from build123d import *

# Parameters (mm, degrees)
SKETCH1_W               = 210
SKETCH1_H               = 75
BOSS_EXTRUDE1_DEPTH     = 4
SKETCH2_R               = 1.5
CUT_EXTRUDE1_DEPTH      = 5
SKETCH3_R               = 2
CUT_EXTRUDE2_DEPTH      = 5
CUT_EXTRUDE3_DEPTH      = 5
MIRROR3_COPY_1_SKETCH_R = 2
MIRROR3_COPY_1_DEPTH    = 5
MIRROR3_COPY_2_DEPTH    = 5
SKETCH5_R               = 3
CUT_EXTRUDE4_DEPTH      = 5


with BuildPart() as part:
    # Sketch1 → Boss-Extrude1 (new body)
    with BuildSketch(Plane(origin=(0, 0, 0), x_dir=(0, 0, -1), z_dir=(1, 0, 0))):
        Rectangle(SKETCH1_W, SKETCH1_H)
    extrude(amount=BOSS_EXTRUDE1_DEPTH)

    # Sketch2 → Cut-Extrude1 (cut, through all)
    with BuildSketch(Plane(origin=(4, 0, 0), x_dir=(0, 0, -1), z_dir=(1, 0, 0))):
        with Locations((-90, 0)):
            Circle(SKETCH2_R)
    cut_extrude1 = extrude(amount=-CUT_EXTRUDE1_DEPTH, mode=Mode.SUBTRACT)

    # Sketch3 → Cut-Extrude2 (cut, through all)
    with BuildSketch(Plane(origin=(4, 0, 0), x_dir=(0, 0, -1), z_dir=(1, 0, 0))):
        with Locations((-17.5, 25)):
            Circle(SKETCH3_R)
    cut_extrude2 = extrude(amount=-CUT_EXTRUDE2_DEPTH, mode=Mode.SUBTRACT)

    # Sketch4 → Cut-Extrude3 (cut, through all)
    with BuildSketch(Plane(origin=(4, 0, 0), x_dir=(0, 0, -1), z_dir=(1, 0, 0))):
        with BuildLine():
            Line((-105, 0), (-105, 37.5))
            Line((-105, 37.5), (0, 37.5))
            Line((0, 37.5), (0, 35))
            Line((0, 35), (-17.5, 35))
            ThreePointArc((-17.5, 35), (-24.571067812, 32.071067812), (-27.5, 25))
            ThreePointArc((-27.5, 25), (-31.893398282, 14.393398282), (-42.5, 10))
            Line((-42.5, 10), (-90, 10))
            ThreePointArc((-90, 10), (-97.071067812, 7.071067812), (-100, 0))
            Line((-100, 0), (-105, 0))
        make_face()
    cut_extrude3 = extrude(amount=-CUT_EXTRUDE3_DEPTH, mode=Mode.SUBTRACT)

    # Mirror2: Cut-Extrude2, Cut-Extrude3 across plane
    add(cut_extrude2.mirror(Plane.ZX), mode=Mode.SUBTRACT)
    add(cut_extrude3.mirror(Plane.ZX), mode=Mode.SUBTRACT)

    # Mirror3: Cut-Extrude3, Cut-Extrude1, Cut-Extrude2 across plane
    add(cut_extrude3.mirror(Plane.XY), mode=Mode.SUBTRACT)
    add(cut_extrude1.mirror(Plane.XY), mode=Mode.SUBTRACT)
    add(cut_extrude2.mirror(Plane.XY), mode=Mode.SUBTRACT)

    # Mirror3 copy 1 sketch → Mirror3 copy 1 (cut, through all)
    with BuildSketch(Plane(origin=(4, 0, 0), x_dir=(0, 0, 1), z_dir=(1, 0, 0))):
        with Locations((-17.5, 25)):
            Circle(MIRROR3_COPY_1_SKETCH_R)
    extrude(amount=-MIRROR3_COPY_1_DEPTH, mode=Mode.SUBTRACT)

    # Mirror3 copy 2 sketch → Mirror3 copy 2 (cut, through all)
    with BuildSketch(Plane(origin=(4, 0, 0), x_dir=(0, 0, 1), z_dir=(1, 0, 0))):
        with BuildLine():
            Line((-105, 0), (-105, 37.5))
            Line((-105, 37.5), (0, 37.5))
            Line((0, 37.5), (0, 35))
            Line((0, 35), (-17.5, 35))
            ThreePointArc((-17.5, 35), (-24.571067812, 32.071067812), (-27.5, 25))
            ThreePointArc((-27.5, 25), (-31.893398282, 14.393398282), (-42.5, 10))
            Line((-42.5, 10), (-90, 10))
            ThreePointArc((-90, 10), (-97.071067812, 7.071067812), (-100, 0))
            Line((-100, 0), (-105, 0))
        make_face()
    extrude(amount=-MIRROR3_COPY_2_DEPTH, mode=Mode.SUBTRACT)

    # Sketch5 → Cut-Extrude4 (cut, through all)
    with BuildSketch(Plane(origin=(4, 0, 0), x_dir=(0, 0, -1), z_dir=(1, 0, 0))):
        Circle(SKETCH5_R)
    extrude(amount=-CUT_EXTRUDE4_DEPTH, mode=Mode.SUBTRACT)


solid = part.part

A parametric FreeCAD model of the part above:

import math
import FreeCAD as App
import Part
import Sketcher

V = App.Vector

doc = App.newDocument("Part")
body = doc.addObject("PartDesign::Body", "Body")

sketch1 = body.newObject("Sketcher::SketchObject", "Sketch")
sketch1.AttachmentSupport = (doc.getObject("YZ_Plane"), [""])
sketch1.MapMode = "FlatFace"
sketch1.addGeometry(Part.LineSegment(V(38, 105, 0), V(-38, 105, 0)), False)
sketch1.addGeometry(Part.LineSegment(V(-38, 105, 0), V(-38, -105, 0)), False)
sketch1.addGeometry(Part.LineSegment(V(-38, -105, 0), V(38, -105, 0)), False)
sketch1.addGeometry(Part.LineSegment(V(38, -105, 0), V(38, 105, 0)), False)
sketch1.addConstraint(Sketcher.Constraint("Coincident", 0, 2, 1, 1))
sketch1.addConstraint(Sketcher.Constraint("Coincident", 1, 2, 2, 1))
sketch1.addConstraint(Sketcher.Constraint("Coincident", 2, 2, 3, 1))
sketch1.addConstraint(Sketcher.Constraint("Coincident", 3, 2, 0, 1))
sketch1.addConstraint(Sketcher.Constraint("Horizontal", 0))
sketch1.addConstraint(Sketcher.Constraint("Vertical", 1))
sketch1.addConstraint(Sketcher.Constraint("Horizontal", 2))
sketch1.addConstraint(Sketcher.Constraint("Vertical", 3))
sketch1.addConstraint(Sketcher.Constraint("Symmetric", 0, 2, 2, 2, -1, 1))
sketch1.addConstraint(Sketcher.Constraint("DistanceX", 0, 2, 0, 1, 75.0))
sketch1.addConstraint(Sketcher.Constraint("DistanceY", 1, 2, 1, 1, 210.0))
pad1 = body.newObject("PartDesign::Pad", "Pad")
pad1.Profile = sketch1
pad1.Length = 4

sketch2 = body.newObject("Sketcher::SketchObject", "Sketch001")
sketch2.AttachmentSupport = (doc.getObject("YZ_Plane"), [""])
sketch2.MapMode = "FlatFace"
sketch2.AttachmentOffset = App.Placement(V(0, 0, 4), App.Rotation())
sketch2.addGeometry(Part.Circle(V(0, 90, 0), V(0, 0, 1), 1.5), False)
sketch2.addConstraint(Sketcher.Constraint("PointOnObject", 0, 3, -2))
sketch2.addConstraint(Sketcher.Constraint("Diameter", 0, 3.0))
sketch2.addConstraint(Sketcher.Constraint("DistanceY", -1, 1, 0, 3, 90.0))
pocket1 = body.newObject("PartDesign::Pocket", "Pocket")
pocket1.Profile = sketch2
pocket1.Type = "ThroughAll"

sketch3 = body.newObject("Sketcher::SketchObject", "Sketch002")
sketch3.AttachmentSupport = (doc.getObject("YZ_Plane"), [""])
sketch3.MapMode = "FlatFace"
sketch3.AttachmentOffset = App.Placement(V(0, 0, 4), App.Rotation())
sketch3.addGeometry(Part.Circle(V(25, 17.5, 0), V(0, 0, 1), 2), False)
sketch3.addConstraint(Sketcher.Constraint("Diameter", 0, 4.0))
sketch3.addConstraint(Sketcher.Constraint("DistanceX", -1, 1, 0, 3, 25.0))
sketch3.addConstraint(Sketcher.Constraint("DistanceY", -1, 1, 0, 3, 17.5))
pocket2 = body.newObject("PartDesign::Pocket", "Pocket001")
pocket2.Profile = sketch3
pocket2.Type = "ThroughAll"

sketch4 = body.newObject("Sketcher::SketchObject", "Sketch003")
sketch4.AttachmentSupport = (doc.getObject("YZ_Plane"), [""])
sketch4.MapMode = "FlatFace"
sketch4.AttachmentOffset = App.Placement(V(0, 0, 4), App.Rotation())
sketch4.addGeometry(Part.LineSegment(V(37.5, 105, 0), V(0, 105, 0)), False)
sketch4.addGeometry(Part.LineSegment(V(0, 105, 0), V(0, 100, 0)), False)
sketch4.addGeometry(Part.ArcOfCircle(Part.Circle(V(0, 90, 0), V(0, 0, 1), 10), math.radians(0), math.radians(90)), False)
sketch4.addGeometry(Part.LineSegment(V(10, 90, 0), V(10, 42.5, 0)), False)
sketch4.addGeometry(Part.ArcOfCircle(Part.Circle(V(25, 42.5, 0), V(0, 0, 1), 15), math.radians(180), math.radians(270)), False)
sketch4.addGeometry(Part.ArcOfCircle(Part.Circle(V(25, 17.5, 0), V(0, 0, 1), 10), math.radians(0), math.radians(90)), False)
sketch4.addGeometry(Part.LineSegment(V(35, 17.5, 0), V(35, 0, 0)), False)
sketch4.addGeometry(Part.LineSegment(V(35, 0, 0), V(37.5, 0, 0)), False)
sketch4.addGeometry(Part.LineSegment(V(37.5, 0, 0), V(37.5, 105, 0)), False)
sketch4.addConstraint(Sketcher.Constraint("Coincident", 0, 2, 1, 1))
sketch4.addConstraint(Sketcher.Constraint("Coincident", 1, 2, 2, 2))
sketch4.addConstraint(Sketcher.Constraint("Tangent", 2, 1, 3, 1))
sketch4.addConstraint(Sketcher.Constraint("Tangent", 3, 2, 4, 1))
sketch4.addConstraint(Sketcher.Constraint("Tangent", 4, 2, 5, 2))
sketch4.addConstraint(Sketcher.Constraint("Tangent", 5, 1, 6, 1))
sketch4.addConstraint(Sketcher.Constraint("Coincident", 6, 2, 7, 1))
sketch4.addConstraint(Sketcher.Constraint("Coincident", 7, 2, 8, 1))
sketch4.addConstraint(Sketcher.Constraint("Coincident", 8, 2, 0, 1))
sketch4.addConstraint(Sketcher.Constraint("Horizontal", 0))
sketch4.addConstraint(Sketcher.Constraint("Vertical", 1))
sketch4.addConstraint(Sketcher.Constraint("Vertical", 3))
sketch4.addConstraint(Sketcher.Constraint("Vertical", 6))
sketch4.addConstraint(Sketcher.Constraint("Horizontal", 7))
sketch4.addConstraint(Sketcher.Constraint("Vertical", 8))
sketch4.addConstraint(Sketcher.Constraint("Equal", 2, 5))
sketch4.addConstraint(Sketcher.Constraint("PointOnObject", 2, 3, -2))
sketch4.addConstraint(Sketcher.Constraint("PointOnObject", 0, 2, -2))
sketch4.addConstraint(Sketcher.Constraint("PointOnObject", 6, 2, -1))
sketch4.addConstraint(Sketcher.Constraint("Vertical", 4, 3, 5, 3))
sketch4.addConstraint(Sketcher.Constraint("Radius", 2, 10.0))
sketch4.addConstraint(Sketcher.Constraint("Radius", 4, 15.0))
sketch4.addConstraint(Sketcher.Constraint("DistanceY", 1, 2, 1, 1, 5.0))
sketch4.addConstraint(Sketcher.Constraint("DistanceY", 8, 1, 8, 2, 105.0))
sketch4.addConstraint(Sketcher.Constraint("DistanceX", 0, 2, 0, 1, 37.5))
sketch4.addConstraint(Sketcher.Constraint("DistanceY", 3, 2, 3, 1, 47.5))
pocket3 = body.newObject("PartDesign::Pocket", "Pocket002")
pocket3.Profile = sketch4
pocket3.Type = "ThroughAll"
doc.recompute()

mirrored = body.newObject("PartDesign::Mirrored", "Mirrored")
mirrored.Originals = [pocket2, pocket3]
mirrored.MirrorPlane = (doc.getObject("XZ_Plane"), [""])
body.Tip = mirrored
doc.recompute()

mirrored2 = body.newObject("PartDesign::Mirrored", "Mirrored001")
mirrored2.Originals = [pocket3, pocket1, pocket2]
mirrored2.MirrorPlane = (doc.getObject("XY_Plane"), [""])
body.Tip = mirrored2

sketch5 = body.newObject("Sketcher::SketchObject", "Sketch004")
sketch5.AttachmentSupport = (doc.getObject("YZ_Plane"), [""])
sketch5.MapMode = "FlatFace"
sketch5.AttachmentOffset = App.Placement(V(0, 0, 4), App.Rotation())
sketch5.addGeometry(Part.Circle(V(-25, -17.5, 0), V(0, 0, 1), 2), False)
sketch5.addConstraint(Sketcher.Constraint("Diameter", 0, 4.0))
sketch5.addConstraint(Sketcher.Constraint("DistanceX", 0, 3, -1, 1, 25.0))
sketch5.addConstraint(Sketcher.Constraint("DistanceY", 0, 3, -1, 1, 17.5))
pocket4 = body.newObject("PartDesign::Pocket", "Pocket003")
pocket4.Profile = sketch5
pocket4.Type = "ThroughAll"

sketch6 = body.newObject("Sketcher::SketchObject", "Sketch005")
sketch6.AttachmentSupport = (doc.getObject("YZ_Plane"), [""])
sketch6.MapMode = "FlatFace"
sketch6.AttachmentOffset = App.Placement(V(0, 0, 4), App.Rotation())
sketch6.addGeometry(Part.LineSegment(V(-37.5, -105, 0), V(0, -105, 0)), False)
sketch6.addGeometry(Part.LineSegment(V(0, -105, 0), V(0, -100, 0)), False)
sketch6.addGeometry(Part.ArcOfCircle(Part.Circle(V(0, -90, 0), V(0, 0, 1), 10), math.radians(180), math.radians(270)), False)
sketch6.addGeometry(Part.LineSegment(V(-10, -90, 0), V(-10, -42.5, 0)), False)
sketch6.addGeometry(Part.ArcOfCircle(Part.Circle(V(-25, -42.5, 0), V(0, 0, 1), 15), math.radians(0), math.radians(90)), False)
sketch6.addGeometry(Part.ArcOfCircle(Part.Circle(V(-25, -17.5, 0), V(0, 0, 1), 10), math.radians(180), math.radians(270)), False)
sketch6.addGeometry(Part.LineSegment(V(-35, -17.5, 0), V(-35, 0, 0)), False)
sketch6.addGeometry(Part.LineSegment(V(-35, 0, 0), V(-37.5, 0, 0)), False)
sketch6.addGeometry(Part.LineSegment(V(-37.5, 0, 0), V(-37.5, -105, 0)), False)
sketch6.addConstraint(Sketcher.Constraint("Coincident", 0, 2, 1, 1))
sketch6.addConstraint(Sketcher.Constraint("Coincident", 1, 2, 2, 2))
sketch6.addConstraint(Sketcher.Constraint("Tangent", 2, 1, 3, 1))
sketch6.addConstraint(Sketcher.Constraint("Tangent", 3, 2, 4, 1))
sketch6.addConstraint(Sketcher.Constraint("Tangent", 4, 2, 5, 2))
sketch6.addConstraint(Sketcher.Constraint("Tangent", 5, 1, 6, 1))
sketch6.addConstraint(Sketcher.Constraint("Coincident", 6, 2, 7, 1))
sketch6.addConstraint(Sketcher.Constraint("Coincident", 7, 2, 8, 1))
sketch6.addConstraint(Sketcher.Constraint("Coincident", 8, 2, 0, 1))
sketch6.addConstraint(Sketcher.Constraint("Horizontal", 0))
sketch6.addConstraint(Sketcher.Constraint("Vertical", 1))
sketch6.addConstraint(Sketcher.Constraint("Vertical", 3))
sketch6.addConstraint(Sketcher.Constraint("Vertical", 6))
sketch6.addConstraint(Sketcher.Constraint("Horizontal", 7))
sketch6.addConstraint(Sketcher.Constraint("Vertical", 8))
sketch6.addConstraint(Sketcher.Constraint("Equal", 2, 5))
sketch6.addConstraint(Sketcher.Constraint("PointOnObject", 2, 3, -2))
sketch6.addConstraint(Sketcher.Constraint("PointOnObject", 0, 2, -2))
sketch6.addConstraint(Sketcher.Constraint("PointOnObject", 6, 2, -1))
sketch6.addConstraint(Sketcher.Constraint("Vertical", 4, 3, 5, 3))
sketch6.addConstraint(Sketcher.Constraint("Radius", 2, 10.0))
sketch6.addConstraint(Sketcher.Constraint("Radius", 4, 15.0))
sketch6.addConstraint(Sketcher.Constraint("DistanceY", 1, 1, 1, 2, 5.0))
sketch6.addConstraint(Sketcher.Constraint("DistanceY", 8, 2, 8, 1, 105.0))
sketch6.addConstraint(Sketcher.Constraint("DistanceX", 0, 1, 0, 2, 37.5))
sketch6.addConstraint(Sketcher.Constraint("DistanceY", 3, 1, 3, 2, 47.5))
pocket5 = body.newObject("PartDesign::Pocket", "Pocket004")
pocket5.Profile = sketch6
pocket5.Type = "ThroughAll"

sketch7 = body.newObject("Sketcher::SketchObject", "Sketch006")
sketch7.AttachmentSupport = (doc.getObject("YZ_Plane"), [""])
sketch7.MapMode = "FlatFace"
sketch7.AttachmentOffset = App.Placement(V(0, 0, 4), App.Rotation())
sketch7.addGeometry(Part.Circle(V(0, 0, 0), V(0, 0, 1), 3), False)
sketch7.addConstraint(Sketcher.Constraint("Coincident", 0, 3, -1, 1))
sketch7.addConstraint(Sketcher.Constraint("Diameter", 0, 6.0))
pocket6 = body.newObject("PartDesign::Pocket", "Pocket005")
pocket6.Profile = sketch7
pocket6.Type = "ThroughAll"

doc.recompute()
